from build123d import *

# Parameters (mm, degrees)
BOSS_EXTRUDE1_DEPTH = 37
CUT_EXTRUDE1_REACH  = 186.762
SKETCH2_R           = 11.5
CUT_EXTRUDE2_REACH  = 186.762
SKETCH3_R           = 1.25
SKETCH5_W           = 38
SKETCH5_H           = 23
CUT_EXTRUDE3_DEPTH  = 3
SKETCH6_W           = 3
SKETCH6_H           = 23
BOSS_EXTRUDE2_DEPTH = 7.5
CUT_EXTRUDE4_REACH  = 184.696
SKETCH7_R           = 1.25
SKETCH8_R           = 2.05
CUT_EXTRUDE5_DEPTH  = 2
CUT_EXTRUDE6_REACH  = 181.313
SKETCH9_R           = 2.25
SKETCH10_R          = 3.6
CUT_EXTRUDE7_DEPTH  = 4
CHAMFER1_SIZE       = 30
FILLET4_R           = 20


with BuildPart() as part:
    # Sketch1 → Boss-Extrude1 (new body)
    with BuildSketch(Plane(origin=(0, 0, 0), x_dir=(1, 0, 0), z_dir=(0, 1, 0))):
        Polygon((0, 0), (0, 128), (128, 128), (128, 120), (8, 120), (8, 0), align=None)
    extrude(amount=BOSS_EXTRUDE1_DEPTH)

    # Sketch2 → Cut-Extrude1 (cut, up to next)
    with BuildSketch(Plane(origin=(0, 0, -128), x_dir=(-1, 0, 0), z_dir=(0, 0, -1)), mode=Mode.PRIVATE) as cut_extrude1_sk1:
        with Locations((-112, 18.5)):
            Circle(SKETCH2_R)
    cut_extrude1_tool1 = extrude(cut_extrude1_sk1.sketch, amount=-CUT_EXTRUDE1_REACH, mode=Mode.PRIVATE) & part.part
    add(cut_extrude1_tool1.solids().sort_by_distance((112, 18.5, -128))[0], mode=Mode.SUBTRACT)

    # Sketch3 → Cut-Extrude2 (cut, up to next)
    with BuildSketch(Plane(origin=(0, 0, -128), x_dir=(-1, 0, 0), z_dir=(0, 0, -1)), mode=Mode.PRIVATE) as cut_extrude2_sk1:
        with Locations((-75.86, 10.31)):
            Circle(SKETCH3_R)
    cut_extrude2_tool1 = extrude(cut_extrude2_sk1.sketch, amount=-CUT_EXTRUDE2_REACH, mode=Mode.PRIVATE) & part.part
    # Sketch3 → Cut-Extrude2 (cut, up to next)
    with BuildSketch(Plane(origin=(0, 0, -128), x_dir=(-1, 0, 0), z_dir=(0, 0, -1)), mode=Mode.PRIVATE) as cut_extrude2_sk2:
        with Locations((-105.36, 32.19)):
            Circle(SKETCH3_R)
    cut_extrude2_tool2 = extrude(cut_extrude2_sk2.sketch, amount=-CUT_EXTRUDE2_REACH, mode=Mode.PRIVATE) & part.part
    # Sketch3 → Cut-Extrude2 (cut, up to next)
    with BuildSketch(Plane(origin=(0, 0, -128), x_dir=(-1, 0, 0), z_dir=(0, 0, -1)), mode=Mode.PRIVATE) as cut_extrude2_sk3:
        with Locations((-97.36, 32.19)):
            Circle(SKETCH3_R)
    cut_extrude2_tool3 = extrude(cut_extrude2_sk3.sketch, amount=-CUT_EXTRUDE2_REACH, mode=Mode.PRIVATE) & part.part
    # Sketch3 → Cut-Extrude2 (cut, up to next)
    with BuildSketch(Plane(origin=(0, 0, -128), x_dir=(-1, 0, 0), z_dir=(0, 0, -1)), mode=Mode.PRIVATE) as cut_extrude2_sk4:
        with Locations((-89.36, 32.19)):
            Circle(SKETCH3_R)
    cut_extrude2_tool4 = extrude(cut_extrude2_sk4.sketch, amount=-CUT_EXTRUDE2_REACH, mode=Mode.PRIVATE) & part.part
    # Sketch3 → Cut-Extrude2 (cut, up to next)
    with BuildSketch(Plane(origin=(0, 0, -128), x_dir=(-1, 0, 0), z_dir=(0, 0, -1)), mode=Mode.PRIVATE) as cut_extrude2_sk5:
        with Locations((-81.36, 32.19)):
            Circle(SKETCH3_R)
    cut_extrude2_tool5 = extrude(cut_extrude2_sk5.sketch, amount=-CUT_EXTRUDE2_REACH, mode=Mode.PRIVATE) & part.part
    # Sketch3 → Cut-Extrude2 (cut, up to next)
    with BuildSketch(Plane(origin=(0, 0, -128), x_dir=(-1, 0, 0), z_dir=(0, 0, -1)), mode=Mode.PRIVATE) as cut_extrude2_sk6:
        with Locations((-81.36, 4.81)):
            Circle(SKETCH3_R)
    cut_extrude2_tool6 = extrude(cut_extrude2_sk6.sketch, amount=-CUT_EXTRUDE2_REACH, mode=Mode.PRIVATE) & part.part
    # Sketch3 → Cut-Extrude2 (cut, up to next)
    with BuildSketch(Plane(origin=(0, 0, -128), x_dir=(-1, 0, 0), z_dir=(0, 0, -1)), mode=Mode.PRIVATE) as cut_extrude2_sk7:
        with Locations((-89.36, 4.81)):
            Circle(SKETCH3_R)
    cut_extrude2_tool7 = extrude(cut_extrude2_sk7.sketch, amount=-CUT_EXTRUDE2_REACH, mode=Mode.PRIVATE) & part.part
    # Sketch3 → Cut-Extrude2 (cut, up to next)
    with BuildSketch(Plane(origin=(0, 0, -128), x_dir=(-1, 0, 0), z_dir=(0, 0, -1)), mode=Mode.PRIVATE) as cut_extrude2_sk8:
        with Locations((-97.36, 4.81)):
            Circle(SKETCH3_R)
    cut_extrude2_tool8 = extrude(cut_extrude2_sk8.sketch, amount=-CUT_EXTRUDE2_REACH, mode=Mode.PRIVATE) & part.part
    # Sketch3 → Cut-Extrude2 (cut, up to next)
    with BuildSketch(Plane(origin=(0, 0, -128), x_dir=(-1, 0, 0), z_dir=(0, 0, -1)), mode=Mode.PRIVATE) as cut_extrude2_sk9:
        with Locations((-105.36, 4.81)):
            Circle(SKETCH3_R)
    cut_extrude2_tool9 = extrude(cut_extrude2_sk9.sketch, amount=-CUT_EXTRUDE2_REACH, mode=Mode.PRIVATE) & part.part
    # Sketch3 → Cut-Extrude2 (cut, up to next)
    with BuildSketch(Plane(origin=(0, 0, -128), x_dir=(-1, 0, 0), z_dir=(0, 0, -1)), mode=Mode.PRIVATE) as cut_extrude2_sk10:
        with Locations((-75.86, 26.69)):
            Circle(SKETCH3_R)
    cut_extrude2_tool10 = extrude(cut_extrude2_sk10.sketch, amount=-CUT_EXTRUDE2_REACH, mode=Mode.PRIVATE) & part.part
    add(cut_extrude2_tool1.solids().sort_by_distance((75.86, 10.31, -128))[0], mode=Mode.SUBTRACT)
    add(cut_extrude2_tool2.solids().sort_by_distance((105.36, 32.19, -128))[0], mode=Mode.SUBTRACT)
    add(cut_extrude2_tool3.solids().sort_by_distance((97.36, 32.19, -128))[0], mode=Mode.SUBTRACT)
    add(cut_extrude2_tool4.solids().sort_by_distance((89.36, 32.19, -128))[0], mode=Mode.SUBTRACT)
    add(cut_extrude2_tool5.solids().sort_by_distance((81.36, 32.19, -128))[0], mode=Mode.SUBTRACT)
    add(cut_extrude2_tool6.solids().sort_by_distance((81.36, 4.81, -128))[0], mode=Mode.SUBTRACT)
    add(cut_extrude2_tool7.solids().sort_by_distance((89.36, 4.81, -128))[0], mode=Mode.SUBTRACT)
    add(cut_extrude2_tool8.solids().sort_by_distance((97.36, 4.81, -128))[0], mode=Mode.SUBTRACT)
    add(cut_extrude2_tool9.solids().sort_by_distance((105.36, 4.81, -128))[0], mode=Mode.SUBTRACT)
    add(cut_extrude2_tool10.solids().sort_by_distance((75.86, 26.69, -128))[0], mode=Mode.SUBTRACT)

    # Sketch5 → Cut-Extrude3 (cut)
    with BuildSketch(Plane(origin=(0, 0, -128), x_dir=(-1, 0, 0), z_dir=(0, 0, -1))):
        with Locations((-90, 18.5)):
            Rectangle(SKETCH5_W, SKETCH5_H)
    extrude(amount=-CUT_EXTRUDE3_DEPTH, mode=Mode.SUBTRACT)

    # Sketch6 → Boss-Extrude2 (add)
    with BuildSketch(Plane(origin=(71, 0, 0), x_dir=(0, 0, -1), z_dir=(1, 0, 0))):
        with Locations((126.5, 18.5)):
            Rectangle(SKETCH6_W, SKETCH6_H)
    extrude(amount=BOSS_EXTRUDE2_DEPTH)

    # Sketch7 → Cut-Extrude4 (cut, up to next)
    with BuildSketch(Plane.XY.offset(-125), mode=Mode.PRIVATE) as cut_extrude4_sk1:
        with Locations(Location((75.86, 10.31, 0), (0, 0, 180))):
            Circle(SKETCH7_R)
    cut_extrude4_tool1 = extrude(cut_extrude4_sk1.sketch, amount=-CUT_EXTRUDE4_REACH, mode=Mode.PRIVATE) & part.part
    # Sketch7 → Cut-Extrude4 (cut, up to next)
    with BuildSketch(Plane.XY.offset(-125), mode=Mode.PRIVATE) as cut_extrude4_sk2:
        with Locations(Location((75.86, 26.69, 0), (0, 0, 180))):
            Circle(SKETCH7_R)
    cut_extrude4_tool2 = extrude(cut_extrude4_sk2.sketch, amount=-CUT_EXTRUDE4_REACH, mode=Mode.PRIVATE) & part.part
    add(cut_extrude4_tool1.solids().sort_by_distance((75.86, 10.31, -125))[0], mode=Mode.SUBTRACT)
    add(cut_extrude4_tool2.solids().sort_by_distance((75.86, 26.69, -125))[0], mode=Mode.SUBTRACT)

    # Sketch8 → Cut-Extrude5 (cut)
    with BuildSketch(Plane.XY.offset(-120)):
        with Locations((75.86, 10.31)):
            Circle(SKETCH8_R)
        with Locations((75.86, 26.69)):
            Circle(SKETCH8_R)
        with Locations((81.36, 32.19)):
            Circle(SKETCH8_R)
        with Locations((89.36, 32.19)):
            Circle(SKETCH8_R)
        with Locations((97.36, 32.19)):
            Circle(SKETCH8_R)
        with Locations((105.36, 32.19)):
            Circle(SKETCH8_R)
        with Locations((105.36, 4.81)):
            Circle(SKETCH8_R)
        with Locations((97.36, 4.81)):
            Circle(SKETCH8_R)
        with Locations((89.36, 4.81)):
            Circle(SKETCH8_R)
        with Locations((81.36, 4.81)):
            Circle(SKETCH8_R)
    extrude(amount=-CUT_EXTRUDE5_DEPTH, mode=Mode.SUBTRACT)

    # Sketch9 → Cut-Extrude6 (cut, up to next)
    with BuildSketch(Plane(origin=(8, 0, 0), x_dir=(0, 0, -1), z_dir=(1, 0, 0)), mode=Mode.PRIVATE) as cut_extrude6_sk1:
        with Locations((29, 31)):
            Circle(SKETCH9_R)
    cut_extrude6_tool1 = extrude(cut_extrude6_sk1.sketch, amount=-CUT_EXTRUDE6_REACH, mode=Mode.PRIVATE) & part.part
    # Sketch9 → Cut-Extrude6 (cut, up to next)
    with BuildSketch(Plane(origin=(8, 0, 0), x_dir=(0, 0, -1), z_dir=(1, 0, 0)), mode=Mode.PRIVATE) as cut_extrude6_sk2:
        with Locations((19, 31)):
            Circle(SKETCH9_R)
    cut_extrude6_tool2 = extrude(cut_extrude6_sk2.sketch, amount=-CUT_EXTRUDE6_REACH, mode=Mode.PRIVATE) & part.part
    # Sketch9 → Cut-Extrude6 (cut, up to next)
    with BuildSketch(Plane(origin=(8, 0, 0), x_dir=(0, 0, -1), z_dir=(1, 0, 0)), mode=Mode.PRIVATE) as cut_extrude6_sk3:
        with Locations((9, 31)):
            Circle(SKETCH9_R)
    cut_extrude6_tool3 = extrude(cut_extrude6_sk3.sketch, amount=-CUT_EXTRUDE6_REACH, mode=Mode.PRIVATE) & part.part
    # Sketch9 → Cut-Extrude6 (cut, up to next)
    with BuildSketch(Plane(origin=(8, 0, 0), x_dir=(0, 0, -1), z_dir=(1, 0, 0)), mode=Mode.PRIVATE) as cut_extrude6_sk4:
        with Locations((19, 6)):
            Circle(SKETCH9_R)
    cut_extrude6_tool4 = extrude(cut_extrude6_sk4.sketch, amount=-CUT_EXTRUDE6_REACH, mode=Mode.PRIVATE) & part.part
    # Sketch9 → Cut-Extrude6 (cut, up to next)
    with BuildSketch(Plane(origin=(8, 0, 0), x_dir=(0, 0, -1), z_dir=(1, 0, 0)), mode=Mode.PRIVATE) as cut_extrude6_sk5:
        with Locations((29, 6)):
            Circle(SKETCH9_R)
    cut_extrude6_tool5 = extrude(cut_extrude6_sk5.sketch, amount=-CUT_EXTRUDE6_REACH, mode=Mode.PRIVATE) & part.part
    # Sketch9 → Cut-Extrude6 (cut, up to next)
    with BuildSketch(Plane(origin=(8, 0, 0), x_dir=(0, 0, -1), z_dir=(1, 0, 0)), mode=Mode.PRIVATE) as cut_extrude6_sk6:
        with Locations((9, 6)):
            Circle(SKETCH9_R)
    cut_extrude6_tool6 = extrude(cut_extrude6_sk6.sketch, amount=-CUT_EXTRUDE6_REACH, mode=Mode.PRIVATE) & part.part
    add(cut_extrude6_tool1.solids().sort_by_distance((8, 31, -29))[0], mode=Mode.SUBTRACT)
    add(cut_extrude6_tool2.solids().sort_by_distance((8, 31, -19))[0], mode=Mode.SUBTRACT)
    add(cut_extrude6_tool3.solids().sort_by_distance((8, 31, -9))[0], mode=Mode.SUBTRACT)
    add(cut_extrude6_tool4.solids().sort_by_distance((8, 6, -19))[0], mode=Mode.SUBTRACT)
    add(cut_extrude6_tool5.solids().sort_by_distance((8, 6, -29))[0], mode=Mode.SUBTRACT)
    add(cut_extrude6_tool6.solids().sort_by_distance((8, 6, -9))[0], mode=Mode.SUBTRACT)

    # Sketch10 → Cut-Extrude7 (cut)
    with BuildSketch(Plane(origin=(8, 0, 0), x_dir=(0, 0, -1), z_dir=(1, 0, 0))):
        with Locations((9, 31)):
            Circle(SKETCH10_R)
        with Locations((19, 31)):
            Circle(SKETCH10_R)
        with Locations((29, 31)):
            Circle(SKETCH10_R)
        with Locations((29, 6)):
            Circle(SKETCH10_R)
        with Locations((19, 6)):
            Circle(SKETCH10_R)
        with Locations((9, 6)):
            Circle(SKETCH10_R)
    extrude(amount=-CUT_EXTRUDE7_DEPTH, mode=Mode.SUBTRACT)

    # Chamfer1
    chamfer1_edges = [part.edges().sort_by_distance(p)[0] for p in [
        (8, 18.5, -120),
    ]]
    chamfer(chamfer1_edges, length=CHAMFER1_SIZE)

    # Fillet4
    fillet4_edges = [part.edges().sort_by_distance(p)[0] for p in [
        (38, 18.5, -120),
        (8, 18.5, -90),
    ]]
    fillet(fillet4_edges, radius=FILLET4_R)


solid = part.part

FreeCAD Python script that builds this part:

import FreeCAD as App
import Part
import Sketcher


def edges_at(feature, points):
    """Names of the edges that pass closest to the given points."""
    edges = feature.Shape.Edges
    near = lambda p: min(range(len(edges)), key=lambda i: edges[i].distToShape(Part.Vertex(*p))[0])
    return sorted({f"Edge{near(p) + 1}" for p in points})


def add_polygon(sketch, points):
    """Adds a closed chain of lines whose ends are joined by coincident constraints."""
    first, n = sketch.GeometryCount, len(points)
    for a, b in zip(points, points[1:] + points[:1]):
        sketch.addGeometry(Part.LineSegment(App.Vector(*a, 0), App.Vector(*b, 0)), False)
    for i in range(n):
        sketch.addConstraint(Sketcher.Constraint("Coincident", first + i, 2, first + (i + 1) % n, 1))

doc = App.newDocument("Part")
body = doc.addObject("PartDesign::Body", "Body")

# Sketch on XZ plane
sketch1 = body.newObject("Sketcher::SketchObject", "Sketch")
sketch1.AttachmentSupport = (doc.getObject("XZ_Plane"), [""])
sketch1.MapMode = "FlatFace"
add_polygon(sketch1, [(0, -128), (0, 0), (8, 0), (8, -120), (128, -120), (128, -128)])  # lines 0-5
sketch1.addConstraint([
    Sketcher.Constraint("Vertical", 0),
    Sketcher.Constraint("Horizontal", 1),
    Sketcher.Constraint("Vertical", 2),
    Sketcher.Constraint("Horizontal", 3),
    Sketcher.Constraint("Vertical", 4),
    Sketcher.Constraint("Horizontal", 5),
    Sketcher.Constraint("Coincident", 0, 2, -1, 1),
    Sketcher.Constraint("Equal", 5, 0),
    Sketcher.Constraint("Equal", 3, 2),
    Sketcher.Constraint("DistanceX", 1, 1, 1, 2, 8.0),
    Sketcher.Constraint("DistanceX", 3, 1, 3, 2, 120.0),
])
pad1 = body.newObject("PartDesign::Pad", "Pad")
pad1.Profile = sketch1
pad1.Length = 37
pad1.Reversed = True

# Sketch on XY plane
sketch2 = body.newObject("Sketcher::SketchObject", "Sketch001")
sketch2.AttachmentSupport = (doc.getObject("XY_Plane"), [""])
sketch2.MapMode = "FlatFace"
sketch2.AttachmentOffset = App.Placement(App.Vector(0, 0, -128), App.Rotation())
sketch2.addGeometry(Part.Circle(App.Vector(112, 18, 0), App.Vector(0, 0, 1), 12), False)
sketch2.addConstraint([
    Sketcher.Constraint("Diameter", 0, 23.0),
    Sketcher.Constraint("DistanceX", -1, 1, 0, 3, 112.0),
    Sketcher.Constraint("DistanceY", -1, 1, 0, 3, 18.5),
])
pocket1 = body.newObject("PartDesign::Pocket", "Pocket")
pocket1.Profile = sketch2
pocket1.Type = "UpToFirst"
pocket1.Reversed = True

# Sketch on XY plane
sketch3 = body.newObject("Sketcher::SketchObject", "Sketch002")
sketch3.AttachmentSupport = (doc.getObject("XY_Plane"), [""])
sketch3.MapMode = "FlatFace"
sketch3.AttachmentOffset = App.Placement(App.Vector(0, 0, -128), App.Rotation())
sketch3.addGeometry(Part.Circle(App.Vector(75.9, 10.3, 0), App.Vector(0, 0, 1), 1.2), False)
sketch3.addConstraint([
    Sketcher.Constraint("Diameter", 0, 2.5),
    Sketcher.Constraint("DistanceX", -1, 1, 0, 3, 75.86),
    Sketcher.Constraint("DistanceY", -1, 1, 0, 3, 10.31),
])
pocket2 = body.newObject("PartDesign::Pocket", "Pocket001")
pocket2.Profile = sketch3
pocket2.Type = "UpToFirst"
pocket2.Reversed = True

# Sketch on XY plane
sketch4 = body.newObject("Sketcher::SketchObject", "Sketch003")
sketch4.AttachmentSupport = (doc.getObject("XY_Plane"), [""])
sketch4.MapMode = "FlatFace"
sketch4.AttachmentOffset = App.Placement(App.Vector(0, 0, -128), App.Rotation())
sketch4.addGeometry(Part.Circle(App.Vector(105.4, 32.2, 0), App.Vector(0, 0, 1), 1.2), False)
sketch4.addConstraint([
    Sketcher.Constraint("Diameter", 0, 2.5),
    Sketcher.Constraint("DistanceX", -1, 1, 0, 3, 105.36),
    Sketcher.Constraint("DistanceY", -1, 1, 0, 3, 32.19),
])
pocket3 = body.newObject("PartDesign::Pocket", "Pocket002")
pocket3.Profile = sketch4
pocket3.Type = "UpToFirst"
pocket3.Reversed = True

# Sketch on XY plane
sketch5 = body.newObject("Sketcher::SketchObject", "Sketch004")
sketch5.AttachmentSupport = (doc.getObject("XY_Plane"), [""])
sketch5.MapMode = "FlatFace"
sketch5.AttachmentOffset = App.Placement(App.Vector(0, 0, -128), App.Rotation())
sketch5.addGeometry(Part.Circle(App.Vector(97.4, 32.2, 0), App.Vector(0, 0, 1), 1.2), False)
sketch5.addConstraint([
    Sketcher.Constraint("Diameter", 0, 2.5),
    Sketcher.Constraint("DistanceX", -1, 1, 0, 3, 97.36),
    Sketcher.Constraint("DistanceY", -1, 1, 0, 3, 32.19),
])
pocket4 = body.newObject("PartDesign::Pocket", "Pocket003")
pocket4.Profile = sketch5
pocket4.Type = "UpToFirst"
pocket4.Reversed = True

# Sketch on XY plane
sketch6 = body.newObject("Sketcher::SketchObject", "Sketch005")
sketch6.AttachmentSupport = (doc.getObject("XY_Plane"), [""])
sketch6.MapMode = "FlatFace"
sketch6.AttachmentOffset = App.Placement(App.Vector(0, 0, -128), App.Rotation())
sketch6.addGeometry(Part.Circle(App.Vector(89.4, 32.2, 0), App.Vector(0, 0, 1), 1.2), False)
sketch6.addConstraint([
    Sketcher.Constraint("Diameter", 0, 2.5),
    Sketcher.Constraint("DistanceX", -1, 1, 0, 3, 89.36),
    Sketcher.Constraint("DistanceY", -1, 1, 0, 3, 32.19),
])
pocket5 = body.newObject("PartDesign::Pocket", "Pocket004")
pocket5.Profile = sketch6
pocket5.Type = "UpToFirst"
pocket5.Reversed = True

# Sketch on XY plane
sketch7 = body.newObject("Sketcher::SketchObject", "Sketch006")
sketch7.AttachmentSupport = (doc.getObject("XY_Plane"), [""])
sketch7.MapMode = "FlatFace"
sketch7.AttachmentOffset = App.Placement(App.Vector(0, 0, -128), App.Rotation())
sketch7.addGeometry(Part.Circle(App.Vector(81.4, 32.2, 0), App.Vector(0, 0, 1), 1.2), False)
sketch7.addConstraint([
    Sketcher.Constraint("Diameter", 0, 2.5),
    Sketcher.Constraint("DistanceX", -1, 1, 0, 3, 81.36),
    Sketcher.Constraint("DistanceY", -1, 1, 0, 3, 32.19),
])
pocket6 = body.newObject("PartDesign::Pocket", "Pocket005")
pocket6.Profile = sketch7
pocket6.Type = "UpToFirst"
pocket6.Reversed = True

# Sketch on XY plane
sketch8 = body.newObject("Sketcher::SketchObject", "Sketch007")
sketch8.AttachmentSupport = (doc.getObject("XY_Plane"), [""])
sketch8.MapMode = "FlatFace"
sketch8.AttachmentOffset = App.Placement(App.Vector(0, 0, -128), App.Rotation())
sketch8.addGeometry(Part.Circle(App.Vector(81.4, 4.8, 0), App.Vector(0, 0, 1), 1.2), False)
sketch8.addConstraint([
    Sketcher.Constraint("Diameter", 0, 2.5),
    Sketcher.Constraint("DistanceX", -1, 1, 0, 3, 81.36),
    Sketcher.Constraint("DistanceY", -1, 1, 0, 3, 4.81),
])
pocket7 = body.newObject("PartDesign::Pocket", "Pocket006")
pocket7.Profile = sketch8
pocket7.Type = "UpToFirst"
pocket7.Reversed = True

# Sketch on XY plane
sketch9 = body.newObject("Sketcher::SketchObject", "Sketch008")
sketch9.AttachmentSupport = (doc.getObject("XY_Plane"), [""])
sketch9.MapMode = "FlatFace"
sketch9.AttachmentOffset = App.Placement(App.Vector(0, 0, -128), App.Rotation())
sketch9.addGeometry(Part.Circle(App.Vector(89.4, 4.8, 0), App.Vector(0, 0, 1), 1.2), False)
sketch9.addConstraint([
    Sketcher.Constraint("Diameter", 0, 2.5),
    Sketcher.Constraint("DistanceX", -1, 1, 0, 3, 89.36),
    Sketcher.Constraint("DistanceY", -1, 1, 0, 3, 4.81),
])
pocket8 = body.newObject("PartDesign::Pocket", "Pocket007")
pocket8.Profile = sketch9
pocket8.Type = "UpToFirst"
pocket8.Reversed = True

# Sketch on XY plane
sketch10 = body.newObject("Sketcher::SketchObject", "Sketch009")
sketch10.AttachmentSupport = (doc.getObject("XY_Plane"), [""])
sketch10.MapMode = "FlatFace"
sketch10.AttachmentOffset = App.Placement(App.Vector(0, 0, -128), App.Rotation())
sketch10.addGeometry(Part.Circle(App.Vector(97.4, 4.8, 0), App.Vector(0, 0, 1), 1.2), False)
sketch10.addConstraint([
    Sketcher.Constraint("Diameter", 0, 2.5),
    Sketcher.Constraint("DistanceX", -1, 1, 0, 3, 97.36),
    Sketcher.Constraint("DistanceY", -1, 1, 0, 3, 4.81),
])
pocket9 = body.newObject("PartDesign::Pocket", "Pocket008")
pocket9.Profile = sketch10
pocket9.Type = "UpToFirst"
pocket9.Reversed = True

# Sketch on XY plane
sketch11 = body.newObject("Sketcher::SketchObject", "Sketch010")
sketch11.AttachmentSupport = (doc.getObject("XY_Plane"), [""])
sketch11.MapMode = "FlatFace"
sketch11.AttachmentOffset = App.Placement(App.Vector(0, 0, -128), App.Rotation())
sketch11.addGeometry(Part.Circle(App.Vector(105.4, 4.8, 0), App.Vector(0, 0, 1), 1.2), False)
sketch11.addConstraint([
    Sketcher.Constraint("Diameter", 0, 2.5),
    Sketcher.Constraint("DistanceX", -1, 1, 0, 3, 105.36),
    Sketcher.Constraint("DistanceY", -1, 1, 0, 3, 4.81),
])
pocket10 = body.newObject("PartDesign::Pocket", "Pocket009")
pocket10.Profile = sketch11
pocket10.Type = "UpToFirst"
pocket10.Reversed = True

# Sketch on XY plane
sketch12 = body.newObject("Sketcher::SketchObject", "Sketch011")
sketch12.AttachmentSupport = (doc.getObject("XY_Plane"), [""])
sketch12.MapMode = "FlatFace"
sketch12.AttachmentOffset = App.Placement(App.Vector(0, 0, -128), App.Rotation())
sketch12.addGeometry(Part.Circle(App.Vector(75.9, 26.7, 0), App.Vector(0, 0, 1), 1.2), False)
sketch12.addConstraint([
    Sketcher.Constraint("Diameter", 0, 2.5),
    Sketcher.Constraint("DistanceX", -1, 1, 0, 3, 75.86),
    Sketcher.Constraint("DistanceY", -1, 1, 0, 3, 26.69),
])
pocket11 = body.newObject("PartDesign::Pocket", "Pocket010")
pocket11.Profile = sketch12
pocket11.Type = "UpToFirst"
pocket11.Reversed = True

# Sketch on XY plane
sketch13 = body.newObject("Sketcher::SketchObject", "Sketch012")
sketch13.AttachmentSupport = (doc.getObject("XY_Plane"), [""])
sketch13.MapMode = "FlatFace"
sketch13.AttachmentOffset = App.Placement(App.Vector(0, 0, -128), App.Rotation())
add_polygon(sketch13, [(109, 30), (109, 7), (71, 7), (71, 30)])  # lines 0-3
sketch13.addConstraint([
    Sketcher.Constraint("Vertical", 0),
    Sketcher.Constraint("Horizontal", 1),
    Sketcher.Constraint("Vertical", 2),
    Sketcher.Constraint("Horizontal", 3),
    Sketcher.Constraint("DistanceX", 1, 2, 1, 1, 38.0),
    Sketcher.Constraint("DistanceY", 0, 2, 0, 1, 23.0),
    Sketcher.Constraint("DistanceX", -1, 1, 0, 2, 109.0),
    Sketcher.Constraint("DistanceY", -1, 1, 0, 2, 7.0),
])
pocket12 = body.newObject("PartDesign::Pocket", "Pocket011")
pocket12.Profile = sketch13
pocket12.Length = 3
pocket12.Reversed = True

# Sketch on YZ plane
sketch14 = body.newObject("Sketcher::SketchObject", "Sketch013")
sketch14.AttachmentSupport = (doc.getObject("YZ_Plane"), [""])
sketch14.MapMode = "FlatFace"
sketch14.AttachmentOffset = App.Placement(App.Vector(0, 0, 71), App.Rotation())
add_polygon(sketch14, [(30, -125), (7, -125), (7, -128), (30, -128)])  # lines 0-3
sketch14.addConstraint([
    Sketcher.Constraint("Horizontal", 0),
    Sketcher.Constraint("Vertical", 1),
    Sketcher.Constraint("Horizontal", 2),
    Sketcher.Constraint("Vertical", 3),
    Sketcher.Constraint("DistanceX", 0, 2, 0, 1, 23.0),
    Sketcher.Constraint("DistanceY", 1, 2, 1, 1, 3.0),
    Sketcher.Constraint("DistanceX", -1, 1, 0, 2, 7.0),
    Sketcher.Constraint("DistanceY", 0, 2, -1, 1, 125.0),
])
pad2 = body.newObject("PartDesign::Pad", "Pad001")
pad2.Profile = sketch14
pad2.Length = 7.5

# Sketch on XY plane
sketch15 = body.newObject("Sketcher::SketchObject", "Sketch014")
sketch15.AttachmentSupport = (doc.getObject("XY_Plane"), [""])
sketch15.MapMode = "FlatFace"
sketch15.AttachmentOffset = App.Placement(App.Vector(0, 0, -125), App.Rotation())
sketch15.addGeometry(Part.Circle(App.Vector(75.9, 10.3, 0), App.Vector(0, 0, 1), 1.2), False)
sketch15.addConstraint([
    Sketcher.Constraint("Diameter", 0, 2.5),
    Sketcher.Constraint("DistanceX", -1, 1, 0, 3, 75.86),
    Sketcher.Constraint("DistanceY", -1, 1, 0, 3, 10.31),
])
pocket13 = body.newObject("PartDesign::Pocket", "Pocket012")
pocket13.Profile = sketch15
pocket13.Type = "UpToFirst"

# Sketch on XY plane
sketch16 = body.newObject("Sketcher::SketchObject", "Sketch015")
sketch16.AttachmentSupport = (doc.getObject("XY_Plane"), [""])
sketch16.MapMode = "FlatFace"
sketch16.AttachmentOffset = App.Placement(App.Vector(0, 0, -125), App.Rotation())
sketch16.addGeometry(Part.Circle(App.Vector(75.9, 26.7, 0), App.Vector(0, 0, 1), 1.2), False)
sketch16.addConstraint([
    Sketcher.Constraint("Diameter", 0, 2.5),
    Sketcher.Constraint("DistanceX", -1, 1, 0, 3, 75.86),
    Sketcher.Constraint("DistanceY", -1, 1, 0, 3, 26.69),
])
pocket14 = body.newObject("PartDesign::Pocket", "Pocket013")
pocket14.Profile = sketch16
pocket14.Type = "UpToFirst"

# Sketch on XY plane
sketch17 = body.newObject("Sketcher::SketchObject", "Sketch016")
sketch17.AttachmentSupport = (doc.getObject("XY_Plane"), [""])
sketch17.MapMode = "FlatFace"
sketch17.AttachmentOffset = App.Placement(App.Vector(0, 0, -120), App.Rotation())
sketch17.addGeometry([
    Part.Circle(App.Vector(75.9, 10.3, 0), App.Vector(0, 0, 1), 2),  # 0
    Part.Circle(App.Vector(75.9, 26.7, 0), App.Vector(0, 0, 1), 2),  # 1
    Part.Circle(App.Vector(81.4, 32.2, 0), App.Vector(0, 0, 1), 2),  # 2
    Part.Circle(App.Vector(89.4, 32.2, 0), App.Vector(0, 0, 1), 2),  # 3
    Part.Circle(App.Vector(97.4, 32.2, 0), App.Vector(0, 0, 1), 2),  # 4
    Part.Circle(App.Vector(105.4, 32.2, 0), App.Vector(0, 0, 1), 2),  # 5
    Part.Circle(App.Vector(105.4, 4.8, 0), App.Vector(0, 0, 1), 2),  # 6
    Part.Circle(App.Vector(97.4, 4.8, 0), App.Vector(0, 0, 1), 2),  # 7
    Part.Circle(App.Vector(89.4, 4.8, 0), App.Vector(0, 0, 1), 2),  # 8
    Part.Circle(App.Vector(81.4, 4.8, 0), App.Vector(0, 0, 1), 2),  # 9
], False)
sketch17.addConstraint([
    Sketcher.Constraint("Equal", 0, 1),
    Sketcher.Constraint("Equal", 1, 2),
    Sketcher.Constraint("Equal", 2, 3),
    Sketcher.Constraint("Equal", 3, 4),
    Sketcher.Constraint("Equal", 4, 5),
    Sketcher.Constraint("Equal", 5, 6),
    Sketcher.Constraint("Equal", 6, 7),
    Sketcher.Constraint("Equal", 7, 8),
    Sketcher.Constraint("Equal", 8, 9),
    Sketcher.Constraint("Horizontal", 2, 3, 3, 3),
    Sketcher.Constraint("Horizontal", 3, 3, 4, 3),
    Sketcher.Constraint("Horizontal", 4, 3, 5, 3),
    Sketcher.Constraint("Horizontal", 6, 3, 7, 3),
    Sketcher.Constraint("Horizontal", 7, 3, 8, 3),
    Sketcher.Constraint("Horizontal", 8, 3, 9, 3),
    Sketcher.Constraint("Vertical", 0, 3, 1, 3),
    Sketcher.Constraint("Vertical", 5, 3, 6, 3),
    Sketcher.Constraint("Vertical", 4, 3, 7, 3),
    Sketcher.Constraint("Vertical", 3, 3, 8, 3),
    Sketcher.Constraint("Vertical", 2, 3, 9, 3),
    Sketcher.Constraint("Diameter", 0, 4.1),
    Sketcher.Constraint("DistanceX", 2, 3, 3, 3, 8.0),
    Sketcher.Constraint("DistanceX", 3, 3, 4, 3, 8.0),
    Sketcher.Constraint("DistanceX", 4, 3, 5, 3, 8.0),
    Sketcher.Constraint("DistanceX", 1, 3, 2, 3, 5.5),
    Sketcher.Constraint("DistanceY", 1, 3, 2, 3, 5.5),
    Sketcher.Constraint("DistanceY", 6, 3, 0, 3, 5.5),
    Sketcher.Constraint("DistanceX", -1, 1, 0, 3, 75.86),
    Sketcher.Constraint("DistanceY", -1, 1, 0, 3, 10.31),
    Sketcher.Constraint("DistanceY", -1, 1, 1, 3, 26.69),
])
pocket15 = body.newObject("PartDesign::Pocket", "Pocket014")
pocket15.Profile = sketch17
pocket15.Length = 2

# Sketch on YZ plane
sketch18 = body.newObject("Sketcher::SketchObject", "Sketch017")
sketch18.AttachmentSupport = (doc.getObject("YZ_Plane"), [""])
sketch18.MapMode = "FlatFace"
sketch18.AttachmentOffset = App.Placement(App.Vector(0, 0, 8), App.Rotation())
sketch18.addGeometry(Part.Circle(App.Vector(31, -29, 0), App.Vector(0, 0, 1), 2.2), False)
sketch18.addConstraint([
    Sketcher.Constraint("Diameter", 0, 4.5),
    Sketcher.Constraint("DistanceX", -1, 1, 0, 3, 31.0),
    Sketcher.Constraint("DistanceY", 0, 3, -1, 1, 29.0),
])
pocket16 = body.newObject("PartDesign::Pocket", "Pocket015")
pocket16.Profile = sketch18
pocket16.Type = "UpToFirst"

# Sketch on YZ plane
sketch19 = body.newObject("Sketcher::SketchObject", "Sketch018")
sketch19.AttachmentSupport = (doc.getObject("YZ_Plane"), [""])
sketch19.MapMode = "FlatFace"
sketch19.AttachmentOffset = App.Placement(App.Vector(0, 0, 8), App.Rotation())
sketch19.addGeometry(Part.Circle(App.Vector(31, -19, 0), App.Vector(0, 0, 1), 2.2), False)
sketch19.addConstraint([
    Sketcher.Constraint("Diameter", 0, 4.5),
    Sketcher.Constraint("DistanceX", -1, 1, 0, 3, 31.0),
    Sketcher.Constraint("DistanceY", 0, 3, -1, 1, 19.0),
])
pocket17 = body.newObject("PartDesign::Pocket", "Pocket016")
pocket17.Profile = sketch19
pocket17.Type = "UpToFirst"

# Sketch on YZ plane
sketch20 = body.newObject("Sketcher::SketchObject", "Sketch019")
sketch20.AttachmentSupport = (doc.getObject("YZ_Plane"), [""])
sketch20.MapMode = "FlatFace"
sketch20.AttachmentOffset = App.Placement(App.Vector(0, 0, 8), App.Rotation())
sketch20.addGeometry(Part.Circle(App.Vector(31, -9, 0), App.Vector(0, 0, 1), 2.2), False)
sketch20.addConstraint([
    Sketcher.Constraint("Diameter", 0, 4.5),
    Sketcher.Constraint("DistanceX", -1, 1, 0, 3, 31.0),
    Sketcher.Constraint("DistanceY", 0, 3, -1, 1, 9.0),
])
pocket18 = body.newObject("PartDesign::Pocket", "Pocket017")
pocket18.Profile = sketch20
pocket18.Type = "UpToFirst"

# Sketch on YZ plane
sketch21 = body.newObject("Sketcher::SketchObject", "Sketch020")
sketch21.AttachmentSupport = (doc.getObject("YZ_Plane"), [""])
sketch21.MapMode = "FlatFace"
sketch21.AttachmentOffset = App.Placement(App.Vector(0, 0, 8), App.Rotation())
sketch21.addGeometry(Part.Circle(App.Vector(6, -19, 0), App.Vector(0, 0, 1), 2.2), False)
sketch21.addConstraint([
    Sketcher.Constraint("Diameter", 0, 4.5),
    Sketcher.Constraint("DistanceX", -1, 1, 0, 3, 6.0),
    Sketcher.Constraint("DistanceY", 0, 3, -1, 1, 19.0),
])
pocket19 = body.newObject("PartDesign::Pocket", "Pocket018")
pocket19.Profile = sketch21
pocket19.Type = "UpToFirst"

# Sketch on YZ plane
sketch22 = body.newObject("Sketcher::SketchObject", "Sketch021")
sketch22.AttachmentSupport = (doc.getObject("YZ_Plane"), [""])
sketch22.MapMode = "FlatFace"
sketch22.AttachmentOffset = App.Placement(App.Vector(0, 0, 8), App.Rotation())
sketch22.addGeometry(Part.Circle(App.Vector(6, -29, 0), App.Vector(0, 0, 1), 2.2), False)
sketch22.addConstraint([
    Sketcher.Constraint("Diameter", 0, 4.5),
    Sketcher.Constraint("DistanceX", -1, 1, 0, 3, 6.0),
    Sketcher.Constraint("DistanceY", 0, 3, -1, 1, 29.0),
])
pocket20 = body.newObject("PartDesign::Pocket", "Pocket019")
pocket20.Profile = sketch22
pocket20.Type = "UpToFirst"

# Sketch on YZ plane
sketch23 = body.newObject("Sketcher::SketchObject", "Sketch022")
sketch23.AttachmentSupport = (doc.getObject("YZ_Plane"), [""])
sketch23.MapMode = "FlatFace"
sketch23.AttachmentOffset = App.Placement(App.Vector(0, 0, 8), App.Rotation())
sketch23.addGeometry(Part.Circle(App.Vector(6, -9, 0), App.Vector(0, 0, 1), 2.2), False)
sketch23.addConstraint([
    Sketcher.Constraint("Diameter", 0, 4.5),
    Sketcher.Constraint("DistanceX", -1, 1, 0, 3, 6.0),
    Sketcher.Constraint("DistanceY", 0, 3, -1, 1, 9.0),
])
pocket21 = body.newObject("PartDesign::Pocket", "Pocket020")
pocket21.Profile = sketch23
pocket21.Type = "UpToFirst"

# Sketch on YZ plane
sketch24 = body.newObject("Sketcher::SketchObject", "Sketch023")
sketch24.AttachmentSupport = (doc.getObject("YZ_Plane"), [""])
sketch24.MapMode = "FlatFace"
sketch24.AttachmentOffset = App.Placement(App.Vector(0, 0, 8), App.Rotation())
sketch24.addGeometry([
    Part.Circle(App.Vector(31, -9, 0), App.Vector(0, 0, 1), 3.6),  # 0
    Part.Circle(App.Vector(31, -19, 0), App.Vector(0, 0, 1), 3.6),  # 1
    Part.Circle(App.Vector(31, -29, 0), App.Vector(0, 0, 1), 3.6),  # 2
    Part.Circle(App.Vector(6, -29, 0), App.Vector(0, 0, 1), 3.6),  # 3
    Part.Circle(App.Vector(6, -19, 0), App.Vector(0, 0, 1), 3.6),  # 4
    Part.Circle(App.Vector(6, -9, 0), App.Vector(0, 0, 1), 3.6),  # 5
], False)
sketch24.addConstraint([
    Sketcher.Constraint("Equal", 0, 1),
    Sketcher.Constraint("Equal", 1, 2),
    Sketcher.Constraint("Equal", 2, 3),
    Sketcher.Constraint("Equal", 3, 4),
    Sketcher.Constraint("Equal", 4, 5),
    Sketcher.Constraint("Horizontal", 2, 3, 3, 3),
    Sketcher.Constraint("Horizontal", 1, 3, 4, 3),
    Sketcher.Constraint("Horizontal", 0, 3, 5, 3),
    Sketcher.Constraint("Vertical", 0, 3, 1, 3),
    Sketcher.Constraint("Vertical", 1, 3, 2, 3),
    Sketcher.Constraint("Vertical", 3, 3, 4, 3),
    Sketcher.Constraint("Vertical", 4, 3, 5, 3),
    Sketcher.Constraint("Diameter", 0, 7.2),
    Sketcher.Constraint("DistanceX", -1, 1, 0, 3, 31.0),
    Sketcher.Constraint("DistanceY", 0, 3, -1, 1, 9.0),
    Sketcher.Constraint("DistanceY", 1, 3, -1, 1, 19.0),
    Sketcher.Constraint("DistanceY", 2, 3, -1, 1, 29.0),
    Sketcher.Constraint("DistanceX", -1, 1, 3, 3, 6.0),
])
pocket22 = body.newObject("PartDesign::Pocket", "Pocket021")
pocket22.Profile = sketch24
pocket22.Length = 4
doc.recompute()

chamfer = body.newObject("PartDesign::Chamfer", "Chamfer")
chamfer.Base = (pocket22, edges_at(pocket22, [(8, 18.5, -120)]))
chamfer.Size = 30
doc.recompute()

fillet = body.newObject("PartDesign::Fillet", "Fillet")
fillet.Base = (chamfer, edges_at(chamfer, [(38, 18.5, -120), (8, 18.5, -90)]))
fillet.Radius = 20

doc.recompute()
